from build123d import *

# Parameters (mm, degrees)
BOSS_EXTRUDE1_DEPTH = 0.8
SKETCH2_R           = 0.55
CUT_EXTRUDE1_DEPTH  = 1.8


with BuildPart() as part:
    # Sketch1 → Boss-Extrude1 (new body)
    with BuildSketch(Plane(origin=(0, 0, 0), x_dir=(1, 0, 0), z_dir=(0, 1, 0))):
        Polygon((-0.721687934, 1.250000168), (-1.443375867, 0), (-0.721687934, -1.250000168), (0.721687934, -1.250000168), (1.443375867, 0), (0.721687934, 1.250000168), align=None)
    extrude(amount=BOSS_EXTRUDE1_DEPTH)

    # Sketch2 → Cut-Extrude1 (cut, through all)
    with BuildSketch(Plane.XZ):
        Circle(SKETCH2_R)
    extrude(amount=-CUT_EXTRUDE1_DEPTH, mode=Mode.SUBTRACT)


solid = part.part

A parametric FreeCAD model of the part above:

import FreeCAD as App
import Part
import Sketcher
Q = App.Units.Quantity

doc = App.newDocument("Part")
body = doc.addObject("PartDesign::Body", "Body")

sketch1 = doc.addObject("Sketcher::SketchObject", "Sketch")
body.addObject(sketch1)
sketch1.AttachmentSupport = (doc.XZ_Plane, [""])
sketch1.MapMode = "FlatFace"
sketch1.addGeometry([
    Part.LineSegment(App.Vector(-0.7, -1.3, 0), App.Vector(-1.4, 0, 0)),
    Part.LineSegment(App.Vector(-1.4, 0, 0), App.Vector(-0.7, 1.3, 0)),
    Part.LineSegment(App.Vector(-0.7, 1.3, 0), App.Vector(0.7, 1.3, 0)),
    Part.LineSegment(App.Vector(0.7, 1.3, 0), App.Vector(1.4, 0, 0)),
    Part.LineSegment(App.Vector(1.4, 0, 0), App.Vector(0.7, -1.3, 0)),
    Part.LineSegment(App.Vector(0.7, -1.3, 0), App.Vector(-0.7, -1.3, 0)),
], False)
sketch1.addConstraint([
    Sketcher.Constraint("Coincident", 0, 2, 1, 1),
    Sketcher.Constraint("Coincident", 1, 2, 2, 1),
    Sketcher.Constraint("Coincident", 2, 2, 3, 1),
    Sketcher.Constraint("Coincident", 3, 2, 4, 1),
    Sketcher.Constraint("Coincident", 4, 2, 5, 1),
    Sketcher.Constraint("Coincident", 5, 2, 0, 1),
    Sketcher.Constraint("Horizontal", 2),
    Sketcher.Constraint("Horizontal", 5),
    Sketcher.Constraint("Symmetric", 0, 2, 3, 2, -1, 1),
    Sketcher.Constraint("Symmetric", 1, 2, 4, 2, -1, 1),
    Sketcher.Constraint("PointOnObject", 0, 2, -1),
    Sketcher.Constraint("Parallel", 0, 3),
    Sketcher.Constraint("Vertical", 2, 2, 4, 2),
    Sketcher.Constraint("Angle", 0, Q("120 deg")),
    Sketcher.Constraint("DistanceY", 4, 2, 2, 2, 2.5),
    Sketcher.Constraint("DistanceX", 2, 1, 2, 2, 1.443376),
])
pad1 = doc.addObject("PartDesign::Pad", "Pad")
body.addObject(pad1)
pad1.Profile = sketch1
pad1.Length = 0.8
pad1.Reversed = True

sketch2 = doc.addObject("Sketcher::SketchObject", "Sketch001")
body.addObject(sketch2)
sketch2.AttachmentSupport = (doc.XZ_Plane, [""])
sketch2.MapMode = "FlatFace"
sketch2.addGeometry(Part.Circle(App.Vector(0, 0, 0), App.Vector(0, 0, 1), 0.6), False)
sketch2.addConstraint([
    Sketcher.Constraint("Coincident", 0, 3, -1, 1),
    Sketcher.Constraint("Diameter", 0, 1.1),
])
pocket1 = doc.addObject("PartDesign::Pocket", "Pocket")
body.addObject(pocket1)
pocket1.Profile = sketch2
pocket1.Type = "ThroughAll"

doc.recompute()
